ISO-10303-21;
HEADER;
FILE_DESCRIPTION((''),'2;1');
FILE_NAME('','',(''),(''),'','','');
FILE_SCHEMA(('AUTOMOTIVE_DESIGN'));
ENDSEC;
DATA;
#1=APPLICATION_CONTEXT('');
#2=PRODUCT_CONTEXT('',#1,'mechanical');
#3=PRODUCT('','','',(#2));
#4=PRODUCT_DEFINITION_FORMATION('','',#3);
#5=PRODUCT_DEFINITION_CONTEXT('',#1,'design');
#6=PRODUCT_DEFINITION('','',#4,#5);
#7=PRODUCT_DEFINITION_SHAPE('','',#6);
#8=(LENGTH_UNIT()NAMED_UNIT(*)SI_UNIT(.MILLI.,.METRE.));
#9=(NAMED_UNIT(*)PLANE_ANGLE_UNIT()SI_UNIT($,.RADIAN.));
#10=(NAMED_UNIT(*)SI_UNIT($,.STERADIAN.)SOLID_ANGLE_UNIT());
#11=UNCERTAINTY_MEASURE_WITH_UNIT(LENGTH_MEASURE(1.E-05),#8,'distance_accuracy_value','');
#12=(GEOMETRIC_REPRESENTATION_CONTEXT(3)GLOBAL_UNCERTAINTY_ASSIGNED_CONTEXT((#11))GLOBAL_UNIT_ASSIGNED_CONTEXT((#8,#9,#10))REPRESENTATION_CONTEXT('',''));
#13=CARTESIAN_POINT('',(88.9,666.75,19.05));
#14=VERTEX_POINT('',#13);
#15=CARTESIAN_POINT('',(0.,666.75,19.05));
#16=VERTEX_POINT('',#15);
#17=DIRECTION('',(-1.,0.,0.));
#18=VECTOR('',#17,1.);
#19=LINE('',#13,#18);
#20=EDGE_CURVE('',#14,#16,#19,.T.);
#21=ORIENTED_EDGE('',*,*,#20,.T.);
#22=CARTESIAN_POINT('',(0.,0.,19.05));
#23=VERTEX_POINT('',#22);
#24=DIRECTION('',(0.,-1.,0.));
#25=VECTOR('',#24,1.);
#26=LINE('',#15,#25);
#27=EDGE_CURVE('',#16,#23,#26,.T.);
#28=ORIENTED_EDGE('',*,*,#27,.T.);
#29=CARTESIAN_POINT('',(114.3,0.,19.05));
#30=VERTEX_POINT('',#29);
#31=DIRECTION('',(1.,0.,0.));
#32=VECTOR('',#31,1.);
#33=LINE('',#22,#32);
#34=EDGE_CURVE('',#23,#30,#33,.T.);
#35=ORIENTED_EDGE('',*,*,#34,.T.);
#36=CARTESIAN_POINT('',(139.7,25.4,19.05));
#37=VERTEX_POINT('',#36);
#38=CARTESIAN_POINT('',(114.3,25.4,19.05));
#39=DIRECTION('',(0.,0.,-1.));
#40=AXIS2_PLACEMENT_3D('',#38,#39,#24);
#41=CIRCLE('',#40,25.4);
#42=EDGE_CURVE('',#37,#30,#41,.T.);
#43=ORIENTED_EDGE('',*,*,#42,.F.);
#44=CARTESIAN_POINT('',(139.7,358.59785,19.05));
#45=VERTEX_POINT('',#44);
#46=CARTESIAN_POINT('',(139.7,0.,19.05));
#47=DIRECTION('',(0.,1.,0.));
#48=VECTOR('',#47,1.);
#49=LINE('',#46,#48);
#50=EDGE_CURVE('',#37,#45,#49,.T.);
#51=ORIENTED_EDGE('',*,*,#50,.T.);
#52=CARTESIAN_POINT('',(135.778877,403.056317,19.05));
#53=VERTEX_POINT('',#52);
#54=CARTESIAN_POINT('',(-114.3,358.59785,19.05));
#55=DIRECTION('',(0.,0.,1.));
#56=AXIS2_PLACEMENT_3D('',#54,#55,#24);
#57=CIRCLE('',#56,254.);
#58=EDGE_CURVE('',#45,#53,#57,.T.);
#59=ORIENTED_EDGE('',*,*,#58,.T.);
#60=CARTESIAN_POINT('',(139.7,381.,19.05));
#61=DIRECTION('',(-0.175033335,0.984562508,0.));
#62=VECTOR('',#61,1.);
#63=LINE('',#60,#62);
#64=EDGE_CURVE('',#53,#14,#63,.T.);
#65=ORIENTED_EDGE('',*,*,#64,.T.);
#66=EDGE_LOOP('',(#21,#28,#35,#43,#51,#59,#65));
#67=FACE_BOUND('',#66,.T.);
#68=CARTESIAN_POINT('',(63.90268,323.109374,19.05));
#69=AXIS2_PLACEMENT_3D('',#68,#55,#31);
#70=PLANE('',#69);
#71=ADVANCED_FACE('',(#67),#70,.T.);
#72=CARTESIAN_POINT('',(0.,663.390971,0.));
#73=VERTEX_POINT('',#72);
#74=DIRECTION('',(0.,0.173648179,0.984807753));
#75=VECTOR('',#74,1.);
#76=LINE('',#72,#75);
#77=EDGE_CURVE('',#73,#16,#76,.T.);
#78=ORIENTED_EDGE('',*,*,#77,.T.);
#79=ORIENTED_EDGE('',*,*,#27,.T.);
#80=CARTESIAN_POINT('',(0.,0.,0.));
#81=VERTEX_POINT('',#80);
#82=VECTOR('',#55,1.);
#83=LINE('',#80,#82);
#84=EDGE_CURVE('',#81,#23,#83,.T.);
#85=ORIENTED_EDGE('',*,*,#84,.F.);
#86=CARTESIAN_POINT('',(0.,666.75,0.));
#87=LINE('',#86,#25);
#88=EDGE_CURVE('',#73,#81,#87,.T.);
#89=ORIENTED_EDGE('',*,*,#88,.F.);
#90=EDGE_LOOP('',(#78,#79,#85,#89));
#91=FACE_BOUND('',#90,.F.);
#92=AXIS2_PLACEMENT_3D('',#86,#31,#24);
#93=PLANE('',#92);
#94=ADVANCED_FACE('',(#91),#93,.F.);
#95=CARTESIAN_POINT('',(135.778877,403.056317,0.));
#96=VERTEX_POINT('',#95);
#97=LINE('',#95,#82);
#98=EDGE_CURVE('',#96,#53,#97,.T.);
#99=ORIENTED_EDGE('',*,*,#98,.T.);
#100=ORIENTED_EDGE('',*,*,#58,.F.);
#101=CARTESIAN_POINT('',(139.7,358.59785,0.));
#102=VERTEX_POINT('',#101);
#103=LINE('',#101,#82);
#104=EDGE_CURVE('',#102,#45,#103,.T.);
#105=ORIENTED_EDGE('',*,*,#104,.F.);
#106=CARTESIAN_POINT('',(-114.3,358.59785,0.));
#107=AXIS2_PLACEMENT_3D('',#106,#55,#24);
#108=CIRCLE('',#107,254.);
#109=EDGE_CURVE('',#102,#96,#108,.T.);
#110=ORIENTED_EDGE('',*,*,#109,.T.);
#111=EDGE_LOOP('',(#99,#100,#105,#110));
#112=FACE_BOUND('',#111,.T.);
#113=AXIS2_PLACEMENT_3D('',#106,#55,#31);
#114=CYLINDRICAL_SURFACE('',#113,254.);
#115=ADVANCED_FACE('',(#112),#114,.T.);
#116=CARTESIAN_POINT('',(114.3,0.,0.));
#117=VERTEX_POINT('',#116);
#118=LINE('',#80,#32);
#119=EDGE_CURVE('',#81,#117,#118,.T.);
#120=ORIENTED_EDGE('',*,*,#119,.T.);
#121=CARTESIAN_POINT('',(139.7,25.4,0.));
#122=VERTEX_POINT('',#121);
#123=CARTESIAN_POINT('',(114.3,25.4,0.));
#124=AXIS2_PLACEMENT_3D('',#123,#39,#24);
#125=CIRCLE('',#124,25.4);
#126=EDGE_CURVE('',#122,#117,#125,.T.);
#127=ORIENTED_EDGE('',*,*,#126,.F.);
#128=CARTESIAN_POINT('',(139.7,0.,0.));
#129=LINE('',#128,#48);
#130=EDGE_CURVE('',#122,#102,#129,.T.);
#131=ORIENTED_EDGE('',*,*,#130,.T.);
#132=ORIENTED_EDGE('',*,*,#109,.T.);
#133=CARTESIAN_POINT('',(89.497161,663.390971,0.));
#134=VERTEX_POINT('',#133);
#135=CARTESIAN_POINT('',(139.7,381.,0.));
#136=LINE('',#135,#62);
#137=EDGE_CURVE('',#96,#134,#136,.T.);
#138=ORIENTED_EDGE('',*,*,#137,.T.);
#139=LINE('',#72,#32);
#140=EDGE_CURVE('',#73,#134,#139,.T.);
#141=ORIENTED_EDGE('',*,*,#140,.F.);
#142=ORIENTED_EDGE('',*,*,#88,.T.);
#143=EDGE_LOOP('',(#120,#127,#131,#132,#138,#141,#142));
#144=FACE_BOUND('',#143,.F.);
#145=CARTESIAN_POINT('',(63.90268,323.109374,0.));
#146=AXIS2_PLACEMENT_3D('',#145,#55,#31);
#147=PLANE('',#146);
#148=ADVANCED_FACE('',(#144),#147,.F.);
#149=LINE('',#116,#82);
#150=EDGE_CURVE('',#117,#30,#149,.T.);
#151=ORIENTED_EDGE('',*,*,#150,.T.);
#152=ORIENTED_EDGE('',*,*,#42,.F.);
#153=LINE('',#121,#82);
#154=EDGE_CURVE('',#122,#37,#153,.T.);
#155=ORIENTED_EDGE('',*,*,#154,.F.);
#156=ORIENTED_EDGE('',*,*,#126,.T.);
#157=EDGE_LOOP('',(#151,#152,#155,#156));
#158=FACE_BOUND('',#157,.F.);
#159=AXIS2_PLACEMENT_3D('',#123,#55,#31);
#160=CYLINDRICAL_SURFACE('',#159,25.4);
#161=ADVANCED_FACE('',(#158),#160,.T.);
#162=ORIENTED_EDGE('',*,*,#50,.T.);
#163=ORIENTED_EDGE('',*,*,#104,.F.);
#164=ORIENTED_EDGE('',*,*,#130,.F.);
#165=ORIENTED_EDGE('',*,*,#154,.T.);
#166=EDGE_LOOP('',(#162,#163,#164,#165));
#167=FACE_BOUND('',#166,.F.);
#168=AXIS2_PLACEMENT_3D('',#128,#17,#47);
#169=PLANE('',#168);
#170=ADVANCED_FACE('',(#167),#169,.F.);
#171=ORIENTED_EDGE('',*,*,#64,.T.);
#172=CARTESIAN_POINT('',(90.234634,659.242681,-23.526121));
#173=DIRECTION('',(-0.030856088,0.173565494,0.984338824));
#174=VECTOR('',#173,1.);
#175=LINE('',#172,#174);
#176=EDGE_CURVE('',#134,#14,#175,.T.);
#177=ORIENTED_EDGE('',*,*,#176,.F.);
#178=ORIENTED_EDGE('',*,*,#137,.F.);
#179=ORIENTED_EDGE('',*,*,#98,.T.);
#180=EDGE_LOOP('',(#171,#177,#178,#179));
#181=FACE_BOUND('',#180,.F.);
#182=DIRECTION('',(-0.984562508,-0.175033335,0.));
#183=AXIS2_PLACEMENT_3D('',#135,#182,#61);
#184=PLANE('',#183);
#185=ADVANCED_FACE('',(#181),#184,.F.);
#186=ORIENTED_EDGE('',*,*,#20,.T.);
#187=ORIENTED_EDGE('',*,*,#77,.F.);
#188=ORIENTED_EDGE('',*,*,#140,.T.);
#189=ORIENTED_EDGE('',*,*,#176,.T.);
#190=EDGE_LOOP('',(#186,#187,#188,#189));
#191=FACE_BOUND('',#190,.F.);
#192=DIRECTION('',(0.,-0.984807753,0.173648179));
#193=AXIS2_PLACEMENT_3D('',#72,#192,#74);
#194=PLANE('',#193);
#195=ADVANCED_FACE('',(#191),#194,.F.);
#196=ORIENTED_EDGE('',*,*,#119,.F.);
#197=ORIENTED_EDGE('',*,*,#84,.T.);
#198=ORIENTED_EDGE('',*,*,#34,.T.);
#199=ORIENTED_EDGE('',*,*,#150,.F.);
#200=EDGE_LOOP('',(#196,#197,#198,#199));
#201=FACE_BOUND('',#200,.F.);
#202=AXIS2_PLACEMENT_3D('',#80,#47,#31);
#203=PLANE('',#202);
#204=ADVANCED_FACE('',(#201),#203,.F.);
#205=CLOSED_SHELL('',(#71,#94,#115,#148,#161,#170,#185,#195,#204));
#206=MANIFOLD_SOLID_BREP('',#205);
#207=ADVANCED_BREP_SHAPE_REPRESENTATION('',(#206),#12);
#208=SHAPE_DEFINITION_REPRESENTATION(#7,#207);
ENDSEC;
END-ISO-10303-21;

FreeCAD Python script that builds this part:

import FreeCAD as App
import Part
import Sketcher

V = App.Vector
Q = App.Units.Quantity


def edges_at(feature, points):
    """Names of the edges that pass closest to the given points."""
    edges = feature.Shape.Edges
    near = lambda p: min(range(len(edges)), key=lambda i: edges[i].distToShape(Part.Vertex(*p))[0])
    return sorted({f"Edge{near(p) + 1}" for p in points})


def add_polygon(sketch, points):
    """Adds a closed chain of lines whose ends are joined by coincident constraints."""
    first, n = sketch.GeometryCount, len(points)
    for a, b in zip(points, points[1:] + points[:1]):
        sketch.addGeometry(Part.LineSegment(App.Vector(*a, 0), App.Vector(*b, 0)), False)
    for i in range(n):
        sketch.addConstraint(Sketcher.Constraint("Coincident", first + i, 2, first + (i + 1) % n, 1))

doc = App.newDocument("Part")
body = doc.addObject("PartDesign::Body", "Body")

sketch1 = body.newObject("Sketcher::SketchObject", "Sketch")
sketch1.AttachmentSupport = (doc.getObject("XY_Plane"), [""])
sketch1.MapMode = "FlatFace"
add_polygon(sketch1, [(0, 667), (0, 0), (140, 0), (140, 381), (89, 667)])
sketch1.addConstraint([
    Sketcher.Constraint("Vertical", 0),
    Sketcher.Constraint("Horizontal", 1),
    Sketcher.Constraint("Vertical", 2),
    Sketcher.Constraint("Horizontal", 4),
    Sketcher.Constraint("Coincident", 0, 2, -1, 1),
    Sketcher.Constraint("DistanceY", 2, 1, 2, 2, Q("15 in")),
    Sketcher.Constraint("DistanceX", 1, 1, 1, 2, Q("5.5 in")),
    Sketcher.Constraint("DistanceX", 4, 2, 4, 1, Q("3.5 in")),
    Sketcher.Constraint("DistanceY", 0, 2, 0, 1, Q("26.25 in")),
])
pad1 = body.newObject("PartDesign::Pad", "Pad")
pad1.Profile = sketch1
pad1.Length = Q("0.75 in")
doc.recompute()

fillet = body.newObject("PartDesign::Fillet", "Fillet")
fillet.Base = (pad1, edges_at(pad1, [(139.7, 381, 9.525)]))
fillet.Radius = Q("10 in")
doc.recompute()

fillet2 = body.newObject("PartDesign::Fillet", "Fillet001")
fillet2.Base = (fillet, edges_at(fillet, [(139.7, 0, 9.525)]))
fillet2.Radius = Q("1 in")

sketch2 = body.newObject("Sketcher::SketchObject", "Sketch001")
sketch2.AttachmentSupport = (doc.getObject("YZ_Plane"), [""])
sketch2.MapMode = "FlatFace"
add_polygon(sketch2, [(663.4, 0), (666.8, 19.1), (666.8, 0)])
sketch2.addConstraint([
    Sketcher.Constraint("Vertical", 1),
    Sketcher.Constraint("Horizontal", 2),
    Sketcher.Constraint("PointOnObject", 1, 2, -1),
    Sketcher.Constraint("Angle", 0, Q("80 deg")),
    Sketcher.Constraint("DistanceY", 1, 2, 1, 1, Q("0.75 in")),
    Sketcher.Constraint("DistanceX", -1, 1, 0, 2, Q("26.25 in")),
])
pocket1 = body.newObject("PartDesign::Pocket", "Pocket")
pocket1.Profile = sketch2
pocket1.Type = "ThroughAll"
pocket1.Reversed = True

doc.recompute()
